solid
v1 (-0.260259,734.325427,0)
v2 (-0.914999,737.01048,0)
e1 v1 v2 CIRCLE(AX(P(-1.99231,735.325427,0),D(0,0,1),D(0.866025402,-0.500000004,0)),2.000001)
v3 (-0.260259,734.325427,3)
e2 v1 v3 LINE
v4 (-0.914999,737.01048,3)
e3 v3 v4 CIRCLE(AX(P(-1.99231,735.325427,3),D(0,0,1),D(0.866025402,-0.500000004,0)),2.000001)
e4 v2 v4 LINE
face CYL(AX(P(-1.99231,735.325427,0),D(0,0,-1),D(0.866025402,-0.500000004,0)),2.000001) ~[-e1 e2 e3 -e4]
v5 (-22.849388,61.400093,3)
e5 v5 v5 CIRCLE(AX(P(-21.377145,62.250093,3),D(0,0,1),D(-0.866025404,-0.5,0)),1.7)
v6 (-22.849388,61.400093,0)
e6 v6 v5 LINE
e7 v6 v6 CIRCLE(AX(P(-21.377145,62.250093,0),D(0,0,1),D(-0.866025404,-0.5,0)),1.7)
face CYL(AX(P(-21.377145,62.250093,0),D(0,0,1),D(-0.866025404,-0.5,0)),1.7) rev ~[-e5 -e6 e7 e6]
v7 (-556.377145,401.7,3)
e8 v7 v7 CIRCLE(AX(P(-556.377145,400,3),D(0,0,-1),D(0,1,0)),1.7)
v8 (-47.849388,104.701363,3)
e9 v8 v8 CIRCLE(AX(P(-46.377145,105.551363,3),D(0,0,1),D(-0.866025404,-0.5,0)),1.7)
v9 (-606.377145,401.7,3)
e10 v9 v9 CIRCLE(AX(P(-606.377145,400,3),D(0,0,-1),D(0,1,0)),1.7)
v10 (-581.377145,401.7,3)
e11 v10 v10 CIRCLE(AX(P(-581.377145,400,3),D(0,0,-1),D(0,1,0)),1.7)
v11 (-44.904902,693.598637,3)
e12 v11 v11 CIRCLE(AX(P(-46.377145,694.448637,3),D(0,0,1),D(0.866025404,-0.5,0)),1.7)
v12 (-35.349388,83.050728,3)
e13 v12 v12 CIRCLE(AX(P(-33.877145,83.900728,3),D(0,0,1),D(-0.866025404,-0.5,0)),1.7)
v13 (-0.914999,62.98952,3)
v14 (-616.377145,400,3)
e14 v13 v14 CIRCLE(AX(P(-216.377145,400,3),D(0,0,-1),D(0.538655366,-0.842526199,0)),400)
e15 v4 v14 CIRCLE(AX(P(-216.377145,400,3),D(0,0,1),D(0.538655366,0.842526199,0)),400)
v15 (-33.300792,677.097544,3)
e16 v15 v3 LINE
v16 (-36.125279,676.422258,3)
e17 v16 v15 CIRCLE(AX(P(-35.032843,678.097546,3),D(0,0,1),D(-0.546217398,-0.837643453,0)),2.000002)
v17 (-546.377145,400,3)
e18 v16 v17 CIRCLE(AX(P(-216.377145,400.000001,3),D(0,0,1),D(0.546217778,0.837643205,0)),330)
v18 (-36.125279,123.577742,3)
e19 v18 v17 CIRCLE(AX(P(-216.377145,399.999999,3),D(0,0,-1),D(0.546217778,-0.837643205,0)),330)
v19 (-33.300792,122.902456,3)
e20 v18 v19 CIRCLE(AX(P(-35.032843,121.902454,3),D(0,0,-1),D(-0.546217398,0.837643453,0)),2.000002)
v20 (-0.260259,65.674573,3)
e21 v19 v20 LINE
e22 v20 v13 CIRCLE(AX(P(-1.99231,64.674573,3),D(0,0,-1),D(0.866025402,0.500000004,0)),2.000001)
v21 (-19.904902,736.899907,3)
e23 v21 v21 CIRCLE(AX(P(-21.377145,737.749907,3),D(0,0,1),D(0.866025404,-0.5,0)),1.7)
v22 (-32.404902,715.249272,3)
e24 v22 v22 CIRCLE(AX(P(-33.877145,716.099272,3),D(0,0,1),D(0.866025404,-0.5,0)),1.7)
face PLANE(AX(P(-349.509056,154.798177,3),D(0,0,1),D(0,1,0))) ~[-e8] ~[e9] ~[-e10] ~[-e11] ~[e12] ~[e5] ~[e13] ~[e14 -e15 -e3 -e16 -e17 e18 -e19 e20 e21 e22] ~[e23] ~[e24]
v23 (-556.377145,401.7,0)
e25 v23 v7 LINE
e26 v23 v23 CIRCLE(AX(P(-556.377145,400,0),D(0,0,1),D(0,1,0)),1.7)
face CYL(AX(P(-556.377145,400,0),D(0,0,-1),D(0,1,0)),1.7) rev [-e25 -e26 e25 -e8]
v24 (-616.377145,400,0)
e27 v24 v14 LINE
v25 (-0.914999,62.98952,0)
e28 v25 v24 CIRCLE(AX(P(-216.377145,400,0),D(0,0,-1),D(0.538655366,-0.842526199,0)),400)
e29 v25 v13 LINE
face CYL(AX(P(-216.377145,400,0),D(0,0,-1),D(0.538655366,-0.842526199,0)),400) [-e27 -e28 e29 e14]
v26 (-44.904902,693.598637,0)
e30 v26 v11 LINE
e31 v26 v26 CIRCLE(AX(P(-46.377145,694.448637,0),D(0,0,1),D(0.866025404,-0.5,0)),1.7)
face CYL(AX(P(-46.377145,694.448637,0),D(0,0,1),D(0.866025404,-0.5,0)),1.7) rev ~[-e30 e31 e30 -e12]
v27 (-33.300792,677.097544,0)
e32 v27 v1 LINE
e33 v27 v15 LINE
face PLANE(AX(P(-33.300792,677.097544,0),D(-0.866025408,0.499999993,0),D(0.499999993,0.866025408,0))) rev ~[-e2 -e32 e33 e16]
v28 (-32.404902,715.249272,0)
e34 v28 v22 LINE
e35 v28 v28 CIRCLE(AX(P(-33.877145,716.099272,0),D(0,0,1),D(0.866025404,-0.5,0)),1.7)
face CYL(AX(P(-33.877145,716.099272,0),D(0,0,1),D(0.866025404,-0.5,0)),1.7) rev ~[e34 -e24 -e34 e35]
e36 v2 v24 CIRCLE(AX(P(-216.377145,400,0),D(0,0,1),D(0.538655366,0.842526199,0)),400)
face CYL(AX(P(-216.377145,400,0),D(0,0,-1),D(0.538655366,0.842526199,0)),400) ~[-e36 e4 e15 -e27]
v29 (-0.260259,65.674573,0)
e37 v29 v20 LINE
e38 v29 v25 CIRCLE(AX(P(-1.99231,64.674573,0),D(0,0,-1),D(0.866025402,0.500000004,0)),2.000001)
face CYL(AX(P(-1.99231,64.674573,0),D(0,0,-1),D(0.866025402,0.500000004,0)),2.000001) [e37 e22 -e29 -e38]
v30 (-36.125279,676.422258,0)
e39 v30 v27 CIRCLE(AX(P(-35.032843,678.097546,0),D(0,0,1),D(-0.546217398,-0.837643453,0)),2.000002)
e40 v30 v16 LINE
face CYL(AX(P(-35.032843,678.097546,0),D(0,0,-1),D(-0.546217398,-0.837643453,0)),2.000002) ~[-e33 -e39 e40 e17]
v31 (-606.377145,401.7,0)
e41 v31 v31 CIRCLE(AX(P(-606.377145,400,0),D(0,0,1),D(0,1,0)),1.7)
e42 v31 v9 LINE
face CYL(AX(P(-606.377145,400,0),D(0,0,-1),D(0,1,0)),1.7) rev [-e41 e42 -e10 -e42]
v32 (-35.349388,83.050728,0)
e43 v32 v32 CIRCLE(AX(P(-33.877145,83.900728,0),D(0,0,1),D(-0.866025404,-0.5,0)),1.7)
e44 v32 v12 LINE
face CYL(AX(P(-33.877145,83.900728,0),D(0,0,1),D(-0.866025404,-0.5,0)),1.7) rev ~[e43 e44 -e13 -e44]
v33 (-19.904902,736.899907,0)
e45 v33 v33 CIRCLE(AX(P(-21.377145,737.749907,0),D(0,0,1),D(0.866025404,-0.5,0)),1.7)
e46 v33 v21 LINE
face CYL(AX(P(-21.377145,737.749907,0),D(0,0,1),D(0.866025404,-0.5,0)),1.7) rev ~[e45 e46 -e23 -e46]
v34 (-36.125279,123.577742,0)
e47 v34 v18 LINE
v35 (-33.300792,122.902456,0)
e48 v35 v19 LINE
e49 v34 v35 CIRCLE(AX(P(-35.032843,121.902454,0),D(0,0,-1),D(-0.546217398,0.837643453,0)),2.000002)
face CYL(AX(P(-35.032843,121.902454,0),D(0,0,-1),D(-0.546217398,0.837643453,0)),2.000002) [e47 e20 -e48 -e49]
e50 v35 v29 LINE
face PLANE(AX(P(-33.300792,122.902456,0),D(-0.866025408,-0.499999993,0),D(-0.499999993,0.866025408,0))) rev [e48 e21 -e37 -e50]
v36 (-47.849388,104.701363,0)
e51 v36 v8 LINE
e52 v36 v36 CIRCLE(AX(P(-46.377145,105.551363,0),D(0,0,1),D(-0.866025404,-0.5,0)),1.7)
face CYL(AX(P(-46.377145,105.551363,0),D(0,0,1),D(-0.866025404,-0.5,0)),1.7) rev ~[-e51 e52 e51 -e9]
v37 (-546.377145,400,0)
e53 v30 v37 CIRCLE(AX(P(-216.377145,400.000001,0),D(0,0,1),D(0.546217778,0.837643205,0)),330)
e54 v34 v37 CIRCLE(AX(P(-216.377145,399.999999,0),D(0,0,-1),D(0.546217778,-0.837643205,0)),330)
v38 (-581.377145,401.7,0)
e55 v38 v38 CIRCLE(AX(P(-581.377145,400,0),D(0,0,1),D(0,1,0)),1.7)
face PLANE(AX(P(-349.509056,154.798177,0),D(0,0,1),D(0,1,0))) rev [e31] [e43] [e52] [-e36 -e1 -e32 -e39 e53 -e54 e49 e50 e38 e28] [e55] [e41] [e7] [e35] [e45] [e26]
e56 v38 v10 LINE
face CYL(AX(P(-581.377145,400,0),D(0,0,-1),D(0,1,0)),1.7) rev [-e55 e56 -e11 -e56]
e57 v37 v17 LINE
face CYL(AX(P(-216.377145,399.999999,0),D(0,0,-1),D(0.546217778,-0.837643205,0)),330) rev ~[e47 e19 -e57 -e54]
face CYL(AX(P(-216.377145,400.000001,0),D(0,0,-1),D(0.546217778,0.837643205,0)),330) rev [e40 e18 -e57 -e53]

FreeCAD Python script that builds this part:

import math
import FreeCAD as App
import Part
import Sketcher

V = App.Vector
Q = App.Units.Quantity

doc = App.newDocument("Part")
body = doc.addObject("PartDesign::Body", "Body")

sketch1 = body.newObject("Sketcher::SketchObject", "Sketch")
sketch1.AttachmentSupport = (doc.getObject("XY_Plane"), [""])
sketch1.MapMode = "FlatFace"
sketch1.addGeometry([
    Part.ArcOfCircle(Part.Circle(V(0, 0, 0), V(0, 0, 1), 400), math.radians(-33), math.radians(90)),
    Part.LineSegment(V(0, 400, 0), V(0, 330, 0)),
    Part.ArcOfCircle(Part.Circle(V(0, 0, 0), V(0, 0, 1), 330), math.radians(-33), math.radians(90)),
    Part.ArcOfCircle(Part.Circle(V(278.1, -181.3, 0), V(0, 0, 1), 2), math.radians(147), math.radians(240)),
    Part.LineSegment(V(277.1, -183.1, 0), V(334.3, -216.1, 0)),
    Part.ArcOfCircle(Part.Circle(V(335.3, -214.4, 0), V(0, 0, 1), 2), math.radians(-120), math.radians(-33)),
], False)
sketch1.addConstraint([
    Sketcher.Constraint("Coincident", 0, 2, 1, 1),
    Sketcher.Constraint("Coincident", 1, 2, 2, 2),
    Sketcher.Constraint("Tangent", 2, 1, 3, 1),
    Sketcher.Constraint("Tangent", 3, 2, 4, 1),
    Sketcher.Constraint("Tangent", 4, 2, 5, 1),
    Sketcher.Constraint("Tangent", 5, 2, 0, 1),
    Sketcher.Constraint("Vertical", 1),
    Sketcher.Constraint("Coincident", 0, 3, -1, 1),
    Sketcher.Constraint("Coincident", 2, 3, -1, 1),
    Sketcher.Constraint("Equal", 3, 5),
    Sketcher.Constraint("PointOnObject", 1, 2, -2),
    Sketcher.Constraint("Radius", 0, 400.0),
    Sketcher.Constraint("Radius", 2, 330.0),
    Sketcher.Constraint("Radius", 3, 2.000002),
    Sketcher.Constraint("Angle", 4, Q("-30 deg")),
    Sketcher.Constraint("DistanceY", 3, 3, -1, 1, 181.344302),
])
pad1 = body.newObject("PartDesign::Pad", "Pad")
pad1.Profile = sketch1
pad1.Length = 3
doc.recompute()

mirrored = body.newObject("PartDesign::Mirrored", "Mirrored")
mirrored.Originals = [pad1]
mirrored.MirrorPlane = (doc.getObject("YZ_Plane"), [""])
body.Tip = mirrored

sketch2 = body.newObject("Sketcher::SketchObject", "Sketch001")
sketch2.AttachmentSupport = (doc.getObject("XY_Plane"), [""])
sketch2.MapMode = "FlatFace"
sketch2.addGeometry([
    Part.Circle(V(0, 340, 0), V(0, 0, 1), 1.7),
    Part.Circle(V(0, 365, 0), V(0, 0, 1), 1.7),
    Part.Circle(V(0, 390, 0), V(0, 0, 1), 1.7),
], False)
sketch2.addConstraint([
    Sketcher.Constraint("Equal", 0, 1),
    Sketcher.Constraint("Equal", 1, 2),
    Sketcher.Constraint("PointOnObject", 0, 3, -2),
    Sketcher.Constraint("PointOnObject", 1, 3, -2),
    Sketcher.Constraint("PointOnObject", 2, 3, -2),
    Sketcher.Constraint("Diameter", 0, 3.4),
    Sketcher.Constraint("DistanceY", -1, 1, 0, 3, 340.0),
    Sketcher.Constraint("DistanceY", -1, 1, 1, 3, 365.0),
    Sketcher.Constraint("DistanceY", -1, 1, 2, 3, 390.0),
])
pocket1 = body.newObject("PartDesign::Pocket", "Pocket")
pocket1.Profile = sketch2
pocket1.Type = "ThroughAll"
pocket1.Midplane = True
doc.recompute()

polarpattern = body.newObject("PartDesign::PolarPattern", "PolarPattern")
polarpattern.Originals = [pocket1]
polarpattern.Axis = (doc.getObject("Z_Axis"), [""])
polarpattern.Angle = 360
polarpattern.Occurrences = 3
body.Tip = polarpattern
body2 = doc.addObject("PartDesign::Body", "Body001")
doc.recompute()

body.Placement = App.Placement(V(-216.377145, 400, 0), App.Rotation(V(0, 0, 1), 90))
boolean = body2.newObject("PartDesign::Boolean", "Boolean")
boolean.Type = "Fuse"
boolean.addObjects([body])

doc.recompute()
